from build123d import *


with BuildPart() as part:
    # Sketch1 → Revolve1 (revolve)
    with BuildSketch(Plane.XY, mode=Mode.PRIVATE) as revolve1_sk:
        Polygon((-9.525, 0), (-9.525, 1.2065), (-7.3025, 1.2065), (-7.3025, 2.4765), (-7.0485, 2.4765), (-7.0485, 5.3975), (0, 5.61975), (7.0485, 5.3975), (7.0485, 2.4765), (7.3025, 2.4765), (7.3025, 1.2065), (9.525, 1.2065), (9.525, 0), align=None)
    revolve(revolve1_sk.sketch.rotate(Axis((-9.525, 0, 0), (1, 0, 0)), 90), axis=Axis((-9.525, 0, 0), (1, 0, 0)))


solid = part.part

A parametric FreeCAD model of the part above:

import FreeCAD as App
import Part
import Sketcher

V = App.Vector
Q = App.Units.Quantity


def add_polygon(sketch, points):
    """Adds a closed chain of lines whose ends are joined by coincident constraints."""
    first, n = sketch.GeometryCount, len(points)
    for a, b in zip(points, points[1:] + points[:1]):
        sketch.addGeometry(Part.LineSegment(App.Vector(*a, 0), App.Vector(*b, 0)), False)
    for i in range(n):
        sketch.addConstraint(Sketcher.Constraint("Coincident", first + i, 2, first + (i + 1) % n, 1))

doc = App.newDocument("Part")
body = doc.addObject("PartDesign::Body", "Body")

# Sketch on XY plane
sketch1 = body.newObject("Sketcher::SketchObject", "Sketch")
sketch1.AttachmentSupport = (doc.getObject("XY_Plane"), [""])
sketch1.MapMode = "FlatFace"
add_polygon(sketch1, [(-9.53, 1.21), (-9.53, 0), (9.53, 0), (9.53, 1.21), (7.3, 1.21), (7.3, 2.48), (7.05, 2.48), (7.05, 5.4), (0, 5.62), (-7.05, 5.4), (-7.05, 2.48), (-7.3, 2.48), (-7.3, 1.21)])  # lines 0-12
sketch1.addConstraint([
    Sketcher.Constraint("Vertical", 0),
    Sketcher.Constraint("Horizontal", 1),
    Sketcher.Constraint("Vertical", 2),
    Sketcher.Constraint("Horizontal", 3),
    Sketcher.Constraint("Vertical", 4),
    Sketcher.Constraint("Horizontal", 5),
    Sketcher.Constraint("Vertical", 6),
    Sketcher.Constraint("Vertical", 9),
    Sketcher.Constraint("Horizontal", 10),
    Sketcher.Constraint("Vertical", 11),
    Sketcher.Constraint("Horizontal", 12),
    Sketcher.Constraint("Symmetric", 0, 2, 1, 2, -1, 1),
    Sketcher.Constraint("Symmetric", 6, 2, 8, 2, -2),
    Sketcher.Constraint("Symmetric", 4, 2, 10, 2, -2),
    Sketcher.Constraint("PointOnObject", 7, 2, -2),
    Sketcher.Constraint("Horizontal", 3, 2, 11, 2),
    Sketcher.Constraint("DistanceX", 1, 1, 1, 2, Q("0.75 in")),
    Sketcher.Constraint("DistanceX", 5, 2, 5, 1, Q("0.01 in")),
    Sketcher.Constraint("DistanceY", 4, 1, 4, 2, Q("0.05 in")),
    Sketcher.Constraint("DistanceY", 6, 1, 6, 2, Q("0.115 in")),
    Sketcher.Constraint("DistanceX", 3, 2, 3, 1, Q("0.0875 in")),
    Sketcher.Constraint("DistanceY", 0, 2, 0, 1, Q("0.0475 in")),
    Sketcher.Constraint("DistanceY", -1, 1, 7, 2, Q("5.61975 mm")),
])
revolution = body.newObject("PartDesign::Revolution", "Revolution")
revolution.Profile = sketch1
revolution.ReferenceAxis = (sketch1, ["H_Axis"])
revolution.Angle = 360

doc.recompute()
